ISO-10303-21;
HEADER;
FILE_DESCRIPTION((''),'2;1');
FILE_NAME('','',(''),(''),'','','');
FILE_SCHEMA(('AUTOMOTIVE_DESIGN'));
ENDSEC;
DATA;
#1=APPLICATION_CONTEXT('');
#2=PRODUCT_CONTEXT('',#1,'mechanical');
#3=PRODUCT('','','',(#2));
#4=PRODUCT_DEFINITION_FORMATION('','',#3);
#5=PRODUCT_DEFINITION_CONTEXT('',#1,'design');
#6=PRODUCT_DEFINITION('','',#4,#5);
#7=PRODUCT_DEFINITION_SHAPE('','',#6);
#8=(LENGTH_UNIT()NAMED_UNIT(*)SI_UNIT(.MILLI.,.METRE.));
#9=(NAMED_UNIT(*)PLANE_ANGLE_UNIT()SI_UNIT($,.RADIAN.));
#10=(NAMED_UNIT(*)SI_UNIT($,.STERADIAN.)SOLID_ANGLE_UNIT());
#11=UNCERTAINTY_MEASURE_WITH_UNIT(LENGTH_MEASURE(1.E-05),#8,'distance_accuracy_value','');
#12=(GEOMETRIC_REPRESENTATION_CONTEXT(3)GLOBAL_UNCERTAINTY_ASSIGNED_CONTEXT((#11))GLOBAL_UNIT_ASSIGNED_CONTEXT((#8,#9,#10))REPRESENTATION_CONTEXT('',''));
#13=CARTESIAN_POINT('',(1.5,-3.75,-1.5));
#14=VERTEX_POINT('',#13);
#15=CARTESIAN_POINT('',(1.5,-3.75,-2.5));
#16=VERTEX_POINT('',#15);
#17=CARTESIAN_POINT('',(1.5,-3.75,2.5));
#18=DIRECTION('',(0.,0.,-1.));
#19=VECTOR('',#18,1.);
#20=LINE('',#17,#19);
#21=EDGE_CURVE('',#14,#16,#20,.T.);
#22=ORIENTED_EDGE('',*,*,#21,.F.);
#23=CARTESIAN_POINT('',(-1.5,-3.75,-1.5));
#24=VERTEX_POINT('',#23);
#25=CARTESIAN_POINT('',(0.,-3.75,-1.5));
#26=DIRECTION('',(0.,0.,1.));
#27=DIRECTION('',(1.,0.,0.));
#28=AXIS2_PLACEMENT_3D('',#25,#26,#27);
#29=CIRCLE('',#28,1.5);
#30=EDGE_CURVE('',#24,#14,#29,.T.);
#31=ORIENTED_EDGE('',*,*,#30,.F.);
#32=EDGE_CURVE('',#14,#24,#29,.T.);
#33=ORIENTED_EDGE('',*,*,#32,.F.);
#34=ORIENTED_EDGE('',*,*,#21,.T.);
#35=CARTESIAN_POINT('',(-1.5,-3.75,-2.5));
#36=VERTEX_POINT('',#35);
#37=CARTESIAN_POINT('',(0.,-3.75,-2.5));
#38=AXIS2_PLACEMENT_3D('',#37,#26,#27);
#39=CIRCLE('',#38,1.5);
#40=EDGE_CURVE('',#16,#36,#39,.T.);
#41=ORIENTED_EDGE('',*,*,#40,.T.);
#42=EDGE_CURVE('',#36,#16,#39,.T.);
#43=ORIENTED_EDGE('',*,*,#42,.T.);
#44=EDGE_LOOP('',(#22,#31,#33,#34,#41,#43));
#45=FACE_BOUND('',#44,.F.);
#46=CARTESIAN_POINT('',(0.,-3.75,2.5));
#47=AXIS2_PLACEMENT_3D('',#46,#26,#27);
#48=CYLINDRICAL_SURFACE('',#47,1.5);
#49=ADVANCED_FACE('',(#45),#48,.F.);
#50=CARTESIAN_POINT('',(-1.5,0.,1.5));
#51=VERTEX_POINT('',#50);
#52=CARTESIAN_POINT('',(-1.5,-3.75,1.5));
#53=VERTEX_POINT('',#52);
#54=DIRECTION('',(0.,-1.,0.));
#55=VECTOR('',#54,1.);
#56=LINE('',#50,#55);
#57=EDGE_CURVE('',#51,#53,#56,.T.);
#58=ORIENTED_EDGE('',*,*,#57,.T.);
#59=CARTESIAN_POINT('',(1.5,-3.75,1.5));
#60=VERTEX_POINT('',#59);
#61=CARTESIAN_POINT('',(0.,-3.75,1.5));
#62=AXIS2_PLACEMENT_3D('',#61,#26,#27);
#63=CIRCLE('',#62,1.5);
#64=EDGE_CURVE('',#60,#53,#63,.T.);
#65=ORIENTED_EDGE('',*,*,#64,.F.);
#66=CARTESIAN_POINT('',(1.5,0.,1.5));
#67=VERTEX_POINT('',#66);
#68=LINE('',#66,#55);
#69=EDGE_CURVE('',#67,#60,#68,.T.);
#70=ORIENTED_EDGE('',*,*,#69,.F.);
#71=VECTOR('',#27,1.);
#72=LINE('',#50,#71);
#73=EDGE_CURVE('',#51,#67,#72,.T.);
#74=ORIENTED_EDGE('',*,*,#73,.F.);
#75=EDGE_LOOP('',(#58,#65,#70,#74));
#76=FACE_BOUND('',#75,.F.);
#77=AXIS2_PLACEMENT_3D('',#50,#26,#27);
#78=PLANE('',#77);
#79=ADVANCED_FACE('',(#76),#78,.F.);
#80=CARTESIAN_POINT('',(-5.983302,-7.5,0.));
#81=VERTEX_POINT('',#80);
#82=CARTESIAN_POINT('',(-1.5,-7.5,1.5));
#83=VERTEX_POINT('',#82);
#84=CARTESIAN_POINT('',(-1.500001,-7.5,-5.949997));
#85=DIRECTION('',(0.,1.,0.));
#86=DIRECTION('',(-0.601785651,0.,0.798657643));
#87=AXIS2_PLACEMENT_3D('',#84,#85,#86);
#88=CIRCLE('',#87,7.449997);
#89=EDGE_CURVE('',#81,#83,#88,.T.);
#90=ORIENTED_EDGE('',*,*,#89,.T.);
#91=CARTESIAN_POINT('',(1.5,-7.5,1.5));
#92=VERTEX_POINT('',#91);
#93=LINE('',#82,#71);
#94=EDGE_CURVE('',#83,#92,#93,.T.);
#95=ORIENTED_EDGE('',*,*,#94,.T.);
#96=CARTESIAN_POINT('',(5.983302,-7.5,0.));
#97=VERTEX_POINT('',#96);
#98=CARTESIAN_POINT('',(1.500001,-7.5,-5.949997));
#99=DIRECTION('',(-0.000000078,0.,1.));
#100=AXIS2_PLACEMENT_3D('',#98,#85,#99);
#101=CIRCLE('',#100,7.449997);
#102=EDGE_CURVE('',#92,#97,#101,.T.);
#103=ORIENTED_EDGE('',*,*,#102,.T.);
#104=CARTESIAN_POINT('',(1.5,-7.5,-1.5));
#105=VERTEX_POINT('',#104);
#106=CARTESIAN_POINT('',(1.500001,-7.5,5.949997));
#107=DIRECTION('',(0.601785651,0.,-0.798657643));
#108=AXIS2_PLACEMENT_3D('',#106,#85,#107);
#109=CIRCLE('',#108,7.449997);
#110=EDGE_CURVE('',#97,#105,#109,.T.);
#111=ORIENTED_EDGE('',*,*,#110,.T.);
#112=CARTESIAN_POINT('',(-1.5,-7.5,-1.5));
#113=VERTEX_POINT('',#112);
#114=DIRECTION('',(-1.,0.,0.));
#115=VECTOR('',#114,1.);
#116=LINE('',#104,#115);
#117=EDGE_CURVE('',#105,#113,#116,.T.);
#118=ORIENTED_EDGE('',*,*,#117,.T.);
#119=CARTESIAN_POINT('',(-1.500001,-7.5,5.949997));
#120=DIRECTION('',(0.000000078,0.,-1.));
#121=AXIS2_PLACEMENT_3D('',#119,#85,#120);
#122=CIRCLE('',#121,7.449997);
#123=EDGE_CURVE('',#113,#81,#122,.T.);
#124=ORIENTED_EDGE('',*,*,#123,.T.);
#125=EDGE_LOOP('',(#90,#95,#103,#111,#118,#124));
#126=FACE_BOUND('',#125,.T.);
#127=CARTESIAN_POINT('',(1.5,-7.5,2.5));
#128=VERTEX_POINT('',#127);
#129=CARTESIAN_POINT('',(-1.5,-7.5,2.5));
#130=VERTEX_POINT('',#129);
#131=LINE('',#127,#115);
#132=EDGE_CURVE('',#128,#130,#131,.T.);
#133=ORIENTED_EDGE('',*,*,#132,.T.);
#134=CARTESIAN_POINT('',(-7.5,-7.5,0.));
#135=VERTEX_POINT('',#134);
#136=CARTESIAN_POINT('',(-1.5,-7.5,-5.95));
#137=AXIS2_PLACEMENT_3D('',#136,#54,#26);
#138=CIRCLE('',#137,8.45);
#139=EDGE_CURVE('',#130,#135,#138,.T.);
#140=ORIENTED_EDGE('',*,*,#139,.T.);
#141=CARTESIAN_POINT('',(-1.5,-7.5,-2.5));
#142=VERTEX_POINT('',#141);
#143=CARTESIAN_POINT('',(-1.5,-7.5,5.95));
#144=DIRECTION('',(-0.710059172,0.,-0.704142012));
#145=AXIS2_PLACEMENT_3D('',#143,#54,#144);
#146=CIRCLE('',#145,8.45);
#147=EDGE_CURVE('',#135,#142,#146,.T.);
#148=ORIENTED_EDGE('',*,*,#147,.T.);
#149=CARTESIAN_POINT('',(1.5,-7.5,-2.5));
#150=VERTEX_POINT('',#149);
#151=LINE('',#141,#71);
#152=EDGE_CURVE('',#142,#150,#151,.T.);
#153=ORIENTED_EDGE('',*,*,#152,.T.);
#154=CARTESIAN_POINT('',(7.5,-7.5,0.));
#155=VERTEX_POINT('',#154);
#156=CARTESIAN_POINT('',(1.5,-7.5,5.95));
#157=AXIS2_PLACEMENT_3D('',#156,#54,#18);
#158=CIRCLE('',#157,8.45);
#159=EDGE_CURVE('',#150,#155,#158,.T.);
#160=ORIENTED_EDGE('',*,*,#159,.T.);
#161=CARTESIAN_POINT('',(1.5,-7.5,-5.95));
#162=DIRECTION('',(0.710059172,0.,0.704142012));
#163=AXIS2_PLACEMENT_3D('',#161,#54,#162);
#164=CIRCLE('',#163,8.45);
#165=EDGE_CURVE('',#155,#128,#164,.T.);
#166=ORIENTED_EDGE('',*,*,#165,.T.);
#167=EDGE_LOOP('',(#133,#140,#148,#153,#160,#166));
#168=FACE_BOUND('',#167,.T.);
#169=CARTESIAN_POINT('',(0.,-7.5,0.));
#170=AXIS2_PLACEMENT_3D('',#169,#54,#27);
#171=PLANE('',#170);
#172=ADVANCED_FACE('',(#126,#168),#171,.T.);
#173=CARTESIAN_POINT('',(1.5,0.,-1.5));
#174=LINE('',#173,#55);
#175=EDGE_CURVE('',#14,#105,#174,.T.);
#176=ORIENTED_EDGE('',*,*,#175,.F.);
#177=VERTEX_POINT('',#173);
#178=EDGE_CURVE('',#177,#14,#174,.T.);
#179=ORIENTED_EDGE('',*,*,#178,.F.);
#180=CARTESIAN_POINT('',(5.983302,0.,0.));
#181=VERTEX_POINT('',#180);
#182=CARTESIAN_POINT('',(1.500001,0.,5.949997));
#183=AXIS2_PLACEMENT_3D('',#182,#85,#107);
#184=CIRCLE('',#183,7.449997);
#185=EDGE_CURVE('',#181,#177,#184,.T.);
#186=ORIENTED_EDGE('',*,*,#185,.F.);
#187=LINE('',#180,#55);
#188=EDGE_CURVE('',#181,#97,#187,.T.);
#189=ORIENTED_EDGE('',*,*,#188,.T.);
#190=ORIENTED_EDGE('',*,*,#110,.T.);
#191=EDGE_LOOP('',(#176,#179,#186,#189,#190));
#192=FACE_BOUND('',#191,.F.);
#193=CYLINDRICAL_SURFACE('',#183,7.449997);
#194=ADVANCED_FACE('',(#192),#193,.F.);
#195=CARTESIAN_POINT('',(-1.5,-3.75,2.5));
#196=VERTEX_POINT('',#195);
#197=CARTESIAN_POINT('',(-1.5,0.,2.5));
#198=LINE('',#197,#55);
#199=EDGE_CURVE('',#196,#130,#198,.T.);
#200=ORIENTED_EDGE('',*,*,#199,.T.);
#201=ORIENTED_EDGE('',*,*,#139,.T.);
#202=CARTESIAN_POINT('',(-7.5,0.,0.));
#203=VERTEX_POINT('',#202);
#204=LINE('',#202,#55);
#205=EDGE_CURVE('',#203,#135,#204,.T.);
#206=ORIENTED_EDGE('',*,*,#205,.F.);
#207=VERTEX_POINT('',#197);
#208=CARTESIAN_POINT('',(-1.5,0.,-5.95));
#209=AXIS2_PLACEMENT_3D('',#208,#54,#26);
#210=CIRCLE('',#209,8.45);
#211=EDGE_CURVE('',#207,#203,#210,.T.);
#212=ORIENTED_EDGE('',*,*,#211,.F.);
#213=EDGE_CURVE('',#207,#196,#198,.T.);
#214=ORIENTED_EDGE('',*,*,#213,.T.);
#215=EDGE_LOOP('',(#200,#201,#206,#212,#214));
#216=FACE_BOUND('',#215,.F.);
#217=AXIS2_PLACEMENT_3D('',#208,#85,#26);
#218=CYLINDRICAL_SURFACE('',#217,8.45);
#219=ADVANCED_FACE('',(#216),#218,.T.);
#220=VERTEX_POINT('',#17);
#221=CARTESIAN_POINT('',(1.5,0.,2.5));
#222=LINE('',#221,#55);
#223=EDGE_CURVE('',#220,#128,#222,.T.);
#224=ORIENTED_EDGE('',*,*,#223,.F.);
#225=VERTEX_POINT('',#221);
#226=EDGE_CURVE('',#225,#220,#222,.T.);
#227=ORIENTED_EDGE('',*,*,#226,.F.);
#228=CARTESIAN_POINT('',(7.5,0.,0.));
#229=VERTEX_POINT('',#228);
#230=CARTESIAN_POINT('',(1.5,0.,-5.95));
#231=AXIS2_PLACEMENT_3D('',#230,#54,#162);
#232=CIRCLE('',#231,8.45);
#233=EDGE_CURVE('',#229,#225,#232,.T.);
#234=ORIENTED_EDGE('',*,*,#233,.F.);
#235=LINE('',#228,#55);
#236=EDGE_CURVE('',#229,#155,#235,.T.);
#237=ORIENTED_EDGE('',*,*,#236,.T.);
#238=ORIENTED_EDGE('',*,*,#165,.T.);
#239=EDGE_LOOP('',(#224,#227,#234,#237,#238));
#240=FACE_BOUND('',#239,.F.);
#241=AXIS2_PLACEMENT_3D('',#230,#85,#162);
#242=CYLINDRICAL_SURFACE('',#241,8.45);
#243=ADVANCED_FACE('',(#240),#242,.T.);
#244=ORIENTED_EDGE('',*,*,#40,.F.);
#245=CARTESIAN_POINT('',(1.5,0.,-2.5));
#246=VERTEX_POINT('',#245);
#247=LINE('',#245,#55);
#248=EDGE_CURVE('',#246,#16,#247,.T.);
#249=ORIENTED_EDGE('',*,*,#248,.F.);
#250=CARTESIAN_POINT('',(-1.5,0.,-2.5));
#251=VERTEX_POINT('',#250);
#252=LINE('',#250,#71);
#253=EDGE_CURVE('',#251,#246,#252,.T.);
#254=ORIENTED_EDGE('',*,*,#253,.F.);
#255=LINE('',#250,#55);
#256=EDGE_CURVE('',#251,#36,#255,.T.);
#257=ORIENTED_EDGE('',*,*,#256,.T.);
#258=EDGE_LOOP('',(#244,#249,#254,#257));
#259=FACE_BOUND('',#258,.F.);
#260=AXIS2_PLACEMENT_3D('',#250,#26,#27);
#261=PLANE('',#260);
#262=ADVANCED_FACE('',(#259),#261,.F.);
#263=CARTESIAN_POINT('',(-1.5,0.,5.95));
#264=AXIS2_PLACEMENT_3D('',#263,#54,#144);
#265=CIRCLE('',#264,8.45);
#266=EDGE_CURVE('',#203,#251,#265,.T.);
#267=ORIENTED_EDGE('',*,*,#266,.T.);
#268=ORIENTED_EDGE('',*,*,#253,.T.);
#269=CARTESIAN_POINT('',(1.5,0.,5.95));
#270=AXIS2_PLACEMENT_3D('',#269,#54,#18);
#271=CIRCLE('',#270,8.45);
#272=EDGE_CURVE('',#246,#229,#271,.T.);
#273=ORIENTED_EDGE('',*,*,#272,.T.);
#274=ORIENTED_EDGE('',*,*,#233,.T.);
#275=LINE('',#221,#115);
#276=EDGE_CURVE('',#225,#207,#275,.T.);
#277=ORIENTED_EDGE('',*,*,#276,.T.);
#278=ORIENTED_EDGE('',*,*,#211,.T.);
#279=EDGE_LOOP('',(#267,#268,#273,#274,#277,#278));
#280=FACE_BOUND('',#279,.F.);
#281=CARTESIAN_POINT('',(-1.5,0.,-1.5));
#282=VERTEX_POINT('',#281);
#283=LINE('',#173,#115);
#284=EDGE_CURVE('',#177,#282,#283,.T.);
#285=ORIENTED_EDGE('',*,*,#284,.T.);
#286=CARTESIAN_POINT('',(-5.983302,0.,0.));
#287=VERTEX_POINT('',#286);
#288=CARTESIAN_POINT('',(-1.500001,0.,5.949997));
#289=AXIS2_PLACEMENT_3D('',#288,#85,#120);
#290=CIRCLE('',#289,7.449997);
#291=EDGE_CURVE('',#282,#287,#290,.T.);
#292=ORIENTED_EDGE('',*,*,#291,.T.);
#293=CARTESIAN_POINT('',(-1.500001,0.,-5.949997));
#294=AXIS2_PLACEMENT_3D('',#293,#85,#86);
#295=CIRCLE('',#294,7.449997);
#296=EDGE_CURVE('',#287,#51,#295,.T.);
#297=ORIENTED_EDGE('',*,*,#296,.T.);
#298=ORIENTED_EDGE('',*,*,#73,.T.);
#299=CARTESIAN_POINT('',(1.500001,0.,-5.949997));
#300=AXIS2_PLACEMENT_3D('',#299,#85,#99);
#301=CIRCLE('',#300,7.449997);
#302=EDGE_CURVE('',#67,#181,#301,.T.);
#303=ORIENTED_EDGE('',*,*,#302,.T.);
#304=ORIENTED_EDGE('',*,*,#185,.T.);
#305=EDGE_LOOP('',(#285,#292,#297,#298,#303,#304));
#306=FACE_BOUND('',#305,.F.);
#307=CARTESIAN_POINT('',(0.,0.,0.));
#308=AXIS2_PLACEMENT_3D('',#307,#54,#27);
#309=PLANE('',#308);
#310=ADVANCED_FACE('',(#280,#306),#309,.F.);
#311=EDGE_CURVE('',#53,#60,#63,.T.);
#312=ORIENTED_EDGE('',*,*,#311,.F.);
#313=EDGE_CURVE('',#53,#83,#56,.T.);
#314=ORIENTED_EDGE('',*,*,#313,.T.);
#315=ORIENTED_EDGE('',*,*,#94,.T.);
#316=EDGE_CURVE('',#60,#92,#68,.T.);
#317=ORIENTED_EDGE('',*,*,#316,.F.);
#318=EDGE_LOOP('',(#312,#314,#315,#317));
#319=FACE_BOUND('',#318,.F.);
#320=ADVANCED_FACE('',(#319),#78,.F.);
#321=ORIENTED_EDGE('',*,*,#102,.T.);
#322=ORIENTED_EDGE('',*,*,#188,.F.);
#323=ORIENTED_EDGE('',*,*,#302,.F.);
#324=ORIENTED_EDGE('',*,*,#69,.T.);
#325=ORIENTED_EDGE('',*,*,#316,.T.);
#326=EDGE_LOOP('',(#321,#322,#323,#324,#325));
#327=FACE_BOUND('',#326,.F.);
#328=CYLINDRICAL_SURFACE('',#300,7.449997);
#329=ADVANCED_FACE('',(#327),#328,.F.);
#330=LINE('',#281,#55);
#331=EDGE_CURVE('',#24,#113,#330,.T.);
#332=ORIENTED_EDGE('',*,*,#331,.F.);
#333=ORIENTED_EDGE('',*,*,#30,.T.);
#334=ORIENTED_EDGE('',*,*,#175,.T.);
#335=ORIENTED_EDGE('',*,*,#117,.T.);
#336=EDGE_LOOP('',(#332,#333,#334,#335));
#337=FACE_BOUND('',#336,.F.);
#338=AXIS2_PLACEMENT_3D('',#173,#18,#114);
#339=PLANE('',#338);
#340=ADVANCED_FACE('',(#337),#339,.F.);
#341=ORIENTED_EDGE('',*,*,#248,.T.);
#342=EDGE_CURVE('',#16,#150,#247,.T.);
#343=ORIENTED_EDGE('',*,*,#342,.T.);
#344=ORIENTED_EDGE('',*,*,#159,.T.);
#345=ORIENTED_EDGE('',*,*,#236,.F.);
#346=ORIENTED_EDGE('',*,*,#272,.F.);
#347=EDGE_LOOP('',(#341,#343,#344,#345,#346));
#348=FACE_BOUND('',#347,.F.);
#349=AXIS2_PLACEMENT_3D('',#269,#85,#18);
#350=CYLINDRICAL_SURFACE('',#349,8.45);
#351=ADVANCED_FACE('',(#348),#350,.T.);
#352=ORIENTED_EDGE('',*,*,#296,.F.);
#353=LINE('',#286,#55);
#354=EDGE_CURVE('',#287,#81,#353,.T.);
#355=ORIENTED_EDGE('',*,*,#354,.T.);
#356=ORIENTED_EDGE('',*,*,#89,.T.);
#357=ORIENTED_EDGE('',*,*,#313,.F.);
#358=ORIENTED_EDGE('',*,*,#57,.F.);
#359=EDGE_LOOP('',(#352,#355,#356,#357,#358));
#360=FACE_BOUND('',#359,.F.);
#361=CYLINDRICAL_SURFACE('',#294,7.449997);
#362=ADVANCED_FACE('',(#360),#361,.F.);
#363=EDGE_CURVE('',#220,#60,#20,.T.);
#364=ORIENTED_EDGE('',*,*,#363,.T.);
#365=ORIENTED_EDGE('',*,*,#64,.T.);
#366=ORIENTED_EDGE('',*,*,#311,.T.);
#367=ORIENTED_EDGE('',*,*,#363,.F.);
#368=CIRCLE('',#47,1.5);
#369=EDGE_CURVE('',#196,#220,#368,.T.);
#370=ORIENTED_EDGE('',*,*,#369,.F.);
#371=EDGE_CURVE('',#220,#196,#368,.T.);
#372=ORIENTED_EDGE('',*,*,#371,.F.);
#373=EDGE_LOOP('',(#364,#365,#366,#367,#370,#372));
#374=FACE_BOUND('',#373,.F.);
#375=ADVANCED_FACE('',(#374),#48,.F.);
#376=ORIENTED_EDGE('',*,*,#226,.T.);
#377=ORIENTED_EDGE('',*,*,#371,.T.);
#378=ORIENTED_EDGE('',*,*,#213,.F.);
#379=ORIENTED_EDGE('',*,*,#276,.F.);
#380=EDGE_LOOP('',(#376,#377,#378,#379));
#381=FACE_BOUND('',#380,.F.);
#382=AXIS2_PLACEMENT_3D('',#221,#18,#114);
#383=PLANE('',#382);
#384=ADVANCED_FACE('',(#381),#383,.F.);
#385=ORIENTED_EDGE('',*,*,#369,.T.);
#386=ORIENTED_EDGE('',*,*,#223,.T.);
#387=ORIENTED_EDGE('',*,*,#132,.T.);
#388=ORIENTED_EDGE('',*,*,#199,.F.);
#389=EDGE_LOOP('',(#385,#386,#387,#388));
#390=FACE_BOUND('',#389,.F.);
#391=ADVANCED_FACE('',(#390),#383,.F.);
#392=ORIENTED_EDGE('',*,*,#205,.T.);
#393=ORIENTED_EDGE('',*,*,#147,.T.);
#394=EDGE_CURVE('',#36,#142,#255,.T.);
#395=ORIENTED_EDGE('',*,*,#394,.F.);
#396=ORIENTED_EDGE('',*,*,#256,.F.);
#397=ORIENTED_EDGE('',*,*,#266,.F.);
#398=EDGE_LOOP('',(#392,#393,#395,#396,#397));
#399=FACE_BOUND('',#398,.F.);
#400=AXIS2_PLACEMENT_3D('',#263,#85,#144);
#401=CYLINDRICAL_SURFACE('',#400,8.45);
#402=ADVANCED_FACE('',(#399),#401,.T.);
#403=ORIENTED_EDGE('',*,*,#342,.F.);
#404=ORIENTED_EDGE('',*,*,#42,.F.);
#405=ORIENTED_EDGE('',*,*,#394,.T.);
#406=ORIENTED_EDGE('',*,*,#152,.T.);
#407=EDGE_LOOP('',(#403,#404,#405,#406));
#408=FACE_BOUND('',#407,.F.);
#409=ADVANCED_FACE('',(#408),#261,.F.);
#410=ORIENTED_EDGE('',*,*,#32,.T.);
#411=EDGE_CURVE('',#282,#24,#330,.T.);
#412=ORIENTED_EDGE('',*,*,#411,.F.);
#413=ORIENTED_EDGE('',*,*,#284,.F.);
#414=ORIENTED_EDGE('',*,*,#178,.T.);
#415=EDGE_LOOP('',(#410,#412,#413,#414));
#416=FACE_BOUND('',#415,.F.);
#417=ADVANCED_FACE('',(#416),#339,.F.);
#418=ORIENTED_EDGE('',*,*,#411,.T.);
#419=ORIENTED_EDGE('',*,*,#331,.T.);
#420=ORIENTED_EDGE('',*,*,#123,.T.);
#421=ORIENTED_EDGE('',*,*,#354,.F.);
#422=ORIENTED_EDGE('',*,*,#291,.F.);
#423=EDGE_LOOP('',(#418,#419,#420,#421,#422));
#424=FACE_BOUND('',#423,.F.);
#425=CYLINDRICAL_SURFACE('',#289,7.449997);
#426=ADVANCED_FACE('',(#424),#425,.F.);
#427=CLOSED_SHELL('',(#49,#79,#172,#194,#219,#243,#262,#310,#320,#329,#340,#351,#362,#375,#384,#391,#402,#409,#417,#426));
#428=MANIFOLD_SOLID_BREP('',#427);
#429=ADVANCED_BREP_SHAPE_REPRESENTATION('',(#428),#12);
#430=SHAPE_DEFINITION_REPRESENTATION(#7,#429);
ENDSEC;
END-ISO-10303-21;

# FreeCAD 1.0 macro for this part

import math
import FreeCAD as App
import Part
import Sketcher
Q = App.Units.Quantity

doc = App.newDocument("Part")
body = doc.addObject("PartDesign::Body", "Body")

# Sketch on XZ plane
sketch1 = body.newObject("Sketcher::SketchObject", "Sketch")
sketch1.AttachmentSupport = (doc.getObject("XZ_Plane"), [""])
sketch1.MapMode = "FlatFace"
sketch1.addGeometry([
    Part.ArcOfCircle(Part.Circle(App.Vector(1.5, -6, 0), App.Vector(0, 0, 1), 8.4), math.radians(45), math.radians(90)),  # 0
    Part.LineSegment(App.Vector(1.5, 2.5, 0), App.Vector(-1.5, 2.5, 0)),  # 1
    Part.ArcOfCircle(Part.Circle(App.Vector(-1.5, -6, 0), App.Vector(0, 0, 1), 8.4), math.radians(90), math.radians(135)),  # 2
    Part.ArcOfCircle(Part.Circle(App.Vector(-1.5, 6, 0), App.Vector(0, 0, 1), 8.4), math.radians(-135), math.radians(-90)),  # 3
    Part.LineSegment(App.Vector(-1.5, -2.5, 0), App.Vector(1.5, -2.5, 0)),  # 4
    Part.ArcOfCircle(Part.Circle(App.Vector(1.5, 6, 0), App.Vector(0, 0, 1), 8.4), math.radians(-90), math.radians(-45)),  # 5
    Part.ArcOfCircle(Part.Circle(App.Vector(-1.5, -5.9, 0), App.Vector(0, 0, 1), 7.4), math.radians(90), math.radians(127)),  # 6
    Part.LineSegment(App.Vector(-1.5, 1.5, 0), App.Vector(1.5, 1.5, 0)),  # 7
    Part.ArcOfCircle(Part.Circle(App.Vector(1.5, -5.9, 0), App.Vector(0, 0, 1), 7.4), math.radians(53), math.radians(90)),  # 8
    Part.ArcOfCircle(Part.Circle(App.Vector(1.5, 5.9, 0), App.Vector(0, 0, 1), 7.4), math.radians(-90), math.radians(-53)),  # 9
    Part.LineSegment(App.Vector(1.5, -1.5, 0), App.Vector(-1.5, -1.5, 0)),  # 10
    Part.ArcOfCircle(Part.Circle(App.Vector(-1.5, 5.9, 0), App.Vector(0, 0, 1), 7.4), math.radians(-127), math.radians(-90)),  # 11
], False)
sketch1.addConstraint([
    Sketcher.Constraint("Tangent", 0, 2, 1, 1),
    Sketcher.Constraint("Tangent", 1, 2, 2, 1),
    Sketcher.Constraint("Coincident", 2, 2, 3, 1),
    Sketcher.Constraint("Tangent", 3, 2, 4, 1),
    Sketcher.Constraint("Tangent", 4, 2, 5, 1),
    Sketcher.Constraint("Coincident", 5, 2, 0, 1),
    Sketcher.Constraint("Tangent", 6, 1, 7, 1),
    Sketcher.Constraint("Tangent", 7, 2, 8, 2),
    Sketcher.Constraint("Coincident", 8, 1, 9, 2),
    Sketcher.Constraint("Tangent", 9, 1, 10, 1),
    Sketcher.Constraint("Tangent", 10, 2, 11, 2),
    Sketcher.Constraint("Coincident", 11, 1, 6, 2),
    Sketcher.Constraint("Horizontal", 1),
    Sketcher.Constraint("Horizontal", 4),
    Sketcher.Constraint("Horizontal", 7),
    Sketcher.Constraint("Horizontal", 10),
    Sketcher.Constraint("Coincident", 6, 3, 2, 3),
    Sketcher.Constraint("Coincident", 8, 3, 0, 3),
    Sketcher.Constraint("Coincident", 9, 3, 5, 3),
    Sketcher.Constraint("Coincident", 11, 3, 3, 3),
    Sketcher.Constraint("Equal", 0, 2),
    Sketcher.Constraint("Equal", 2, 3),
    Sketcher.Constraint("Equal", 3, 5),
    Sketcher.Constraint("Equal", 8, 9),
    Sketcher.Constraint("Symmetric", 0, 3, 3, 3, -1, 1),
    Sketcher.Constraint("Symmetric", 2, 2, 5, 2, -2),
    Sketcher.Constraint("DistanceX", 1, 2, 1, 1, Q("3 mm")),
    Sketcher.Constraint("Radius", 0, Q("8.45 mm")),
    Sketcher.Constraint("DistanceX", 2, 2, 1, 2, Q("6 mm")),
    Sketcher.Constraint("DistanceY", 6, 1, 1, 2, Q("1 mm")),
])
pad1 = body.newObject("PartDesign::Pad", "Pad")
pad1.Profile = sketch1
pad1.Length = 7.5

# Sketch on XY plane
sketch2 = body.newObject("Sketcher::SketchObject", "Sketch001")
sketch2.AttachmentSupport = (doc.getObject("XY_Plane"), [""])
sketch2.MapMode = "FlatFace"
sketch2.AttachmentOffset = App.Placement(App.Vector(0, 0, 2.5), App.Rotation())
sketch2.addGeometry(Part.Circle(App.Vector(0, -3.8, 0), App.Vector(0, 0, 1), 1.5), False)
sketch2.addConstraint([
    Sketcher.Constraint("PointOnObject", 0, 3, -2),
    Sketcher.Constraint("Diameter", 0, Q("3 mm")),
    Sketcher.Constraint("DistanceY", 0, 3, -1, 1, Q("3.75 mm")),
])
pocket1 = body.newObject("PartDesign::Pocket", "Pocket")
pocket1.Profile = sketch2
pocket1.Type = "ThroughAll"

doc.recompute()
